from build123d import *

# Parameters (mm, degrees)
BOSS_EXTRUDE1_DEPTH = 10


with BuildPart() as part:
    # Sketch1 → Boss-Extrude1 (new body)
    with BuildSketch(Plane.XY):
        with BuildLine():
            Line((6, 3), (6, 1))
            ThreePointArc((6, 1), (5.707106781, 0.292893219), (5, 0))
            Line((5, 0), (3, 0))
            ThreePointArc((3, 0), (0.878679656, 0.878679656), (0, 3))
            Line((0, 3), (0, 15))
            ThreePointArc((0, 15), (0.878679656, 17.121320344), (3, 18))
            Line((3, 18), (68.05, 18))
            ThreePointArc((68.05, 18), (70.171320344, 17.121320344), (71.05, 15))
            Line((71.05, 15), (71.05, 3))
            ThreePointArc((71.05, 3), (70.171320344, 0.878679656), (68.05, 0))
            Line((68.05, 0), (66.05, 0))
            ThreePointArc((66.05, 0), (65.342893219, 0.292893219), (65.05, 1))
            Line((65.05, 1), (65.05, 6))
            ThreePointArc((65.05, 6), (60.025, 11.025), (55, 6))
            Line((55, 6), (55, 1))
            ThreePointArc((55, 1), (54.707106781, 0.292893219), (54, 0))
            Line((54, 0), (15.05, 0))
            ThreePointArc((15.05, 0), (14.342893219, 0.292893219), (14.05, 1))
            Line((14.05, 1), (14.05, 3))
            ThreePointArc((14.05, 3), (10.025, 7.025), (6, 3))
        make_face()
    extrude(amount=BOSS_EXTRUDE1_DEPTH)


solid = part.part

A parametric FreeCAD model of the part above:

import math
import FreeCAD as App
import Part
import Sketcher
from FreeCAD import Vector
Q = App.Units.Quantity

doc = App.newDocument("Part")
body = doc.addObject("PartDesign::Body", "Body")

# Sketch on XY plane
sketch1 = body.newObject("Sketcher::SketchObject", "Sketch")
sketch1.AttachmentSupport = (doc.getObject("XY_Plane"), [""])
sketch1.MapMode = "FlatFace"
sketch1.addGeometry([
    Part.LineSegment(Vector(6, 1, 0), Vector(6, 3, 0)),  # 0
    Part.ArcOfCircle(Part.Circle(Vector(10.025, 3, 0), Vector(0, 0, 1), 4.025), math.radians(0), math.radians(180)),  # 1
    Part.LineSegment(Vector(14.05, 3, 0), Vector(14.05, 1, 0)),  # 2
    Part.ArcOfCircle(Part.Circle(Vector(15.05, 1, 0), Vector(0, 0, 1), 1), math.radians(-180), math.radians(-90)),  # 3
    Part.LineSegment(Vector(15.05, 0, 0), Vector(54, 0, 0)),  # 4
    Part.ArcOfCircle(Part.Circle(Vector(54, 1, 0), Vector(0, 0, 1), 1), math.radians(-90), math.radians(0)),  # 5
    Part.LineSegment(Vector(55, 1, 0), Vector(55, 6, 0)),  # 6
    Part.ArcOfCircle(Part.Circle(Vector(60.025, 6, 0), Vector(0, 0, 1), 5.025), math.radians(0), math.radians(180)),  # 7
    Part.LineSegment(Vector(65.05, 6, 0), Vector(65.05, 1, 0)),  # 8
    Part.ArcOfCircle(Part.Circle(Vector(66.05, 1, 0), Vector(0, 0, 1), 1), math.radians(-180), math.radians(-90)),  # 9
    Part.LineSegment(Vector(66.05, 0, 0), Vector(68.05, 0, 0)),  # 10
    Part.ArcOfCircle(Part.Circle(Vector(68.05, 3, 0), Vector(0, 0, 1), 3), math.radians(-90), math.radians(0)),  # 11
    Part.LineSegment(Vector(71.05, 3, 0), Vector(71.05, 15, 0)),  # 12
    Part.ArcOfCircle(Part.Circle(Vector(68.05, 15, 0), Vector(0, 0, 1), 3), math.radians(0), math.radians(90)),  # 13
    Part.LineSegment(Vector(68.05, 18, 0), Vector(3, 18, 0)),  # 14
    Part.ArcOfCircle(Part.Circle(Vector(3, 15, 0), Vector(0, 0, 1), 3), math.radians(90), math.radians(180)),  # 15
    Part.LineSegment(Vector(0, 15, 0), Vector(0, 3, 0)),  # 16
    Part.ArcOfCircle(Part.Circle(Vector(3, 3, 0), Vector(0, 0, 1), 3), math.radians(180), math.radians(270)),  # 17
    Part.LineSegment(Vector(3, 0, 0), Vector(5, 0, 0)),  # 18
    Part.ArcOfCircle(Part.Circle(Vector(5, 1, 0), Vector(0, 0, 1), 1), math.radians(-90), math.radians(0)),  # 19
], False)
sketch1.addConstraint([
    Sketcher.Constraint("Tangent", 0, 2, 1, 2),
    Sketcher.Constraint("Tangent", 1, 1, 2, 1),
    Sketcher.Constraint("Tangent", 2, 2, 3, 1),
    Sketcher.Constraint("Tangent", 3, 2, 4, 1),
    Sketcher.Constraint("Tangent", 4, 2, 5, 1),
    Sketcher.Constraint("Tangent", 5, 2, 6, 1),
    Sketcher.Constraint("Tangent", 6, 2, 7, 2),
    Sketcher.Constraint("Tangent", 7, 1, 8, 1),
    Sketcher.Constraint("Tangent", 8, 2, 9, 1),
    Sketcher.Constraint("Tangent", 9, 2, 10, 1),
    Sketcher.Constraint("Tangent", 10, 2, 11, 1),
    Sketcher.Constraint("Tangent", 11, 2, 12, 1),
    Sketcher.Constraint("Tangent", 12, 2, 13, 1),
    Sketcher.Constraint("Tangent", 13, 2, 14, 1),
    Sketcher.Constraint("Tangent", 14, 2, 15, 1),
    Sketcher.Constraint("Tangent", 15, 2, 16, 1),
    Sketcher.Constraint("Tangent", 16, 2, 17, 1),
    Sketcher.Constraint("Tangent", 17, 2, 18, 1),
    Sketcher.Constraint("Tangent", 18, 2, 19, 1),
    Sketcher.Constraint("Tangent", 19, 2, 0, 1),
    Sketcher.Constraint("Vertical", 0),
    Sketcher.Constraint("Vertical", 2),
    Sketcher.Constraint("Horizontal", 4),
    Sketcher.Constraint("Vertical", 6),
    Sketcher.Constraint("Vertical", 8),
    Sketcher.Constraint("Horizontal", 10),
    Sketcher.Constraint("Vertical", 12),
    Sketcher.Constraint("Horizontal", 14),
    Sketcher.Constraint("Vertical", 16),
    Sketcher.Constraint("Horizontal", 18),
    Sketcher.Constraint("Equal", 3, 5),
    Sketcher.Constraint("Equal", 5, 9),
    Sketcher.Constraint("Equal", 11, 13),
    Sketcher.Constraint("Equal", 13, 15),
    Sketcher.Constraint("Equal", 15, 17),
    Sketcher.Constraint("Equal", 9, 19),
    Sketcher.Constraint("PointOnObject", 3, 2, -1),
    Sketcher.Constraint("PointOnObject", 9, 2, -1),
    Sketcher.Constraint("PointOnObject", 15, 2, -2),
    Sketcher.Constraint("PointOnObject", 17, 2, -1),
    Sketcher.Constraint("Horizontal", 1, 3, 11, 3),
    Sketcher.Constraint("Equal", 10, 18),
    Sketcher.Constraint("Equal", 18, 0),
    Sketcher.Constraint("Radius", 3, Q("1 mm")),
    Sketcher.Constraint("Radius", 11, Q("3 mm")),
    Sketcher.Constraint("DistanceY", 6, 1, 6, 2, Q("5 mm")),
    Sketcher.Constraint("DistanceY", 12, 1, 12, 2, Q("12 mm")),
    Sketcher.Constraint("DistanceX", -1, 1, 5, 3, Q("54 mm")),
    Sketcher.Constraint("Radius", 1, Q("4.025 mm")),
    Sketcher.Constraint("Radius", 7, Q("5.025 mm")),
])
pad1 = body.newObject("PartDesign::Pad", "Pad")
pad1.Profile = sketch1
pad1.Length = 10

doc.recompute()
